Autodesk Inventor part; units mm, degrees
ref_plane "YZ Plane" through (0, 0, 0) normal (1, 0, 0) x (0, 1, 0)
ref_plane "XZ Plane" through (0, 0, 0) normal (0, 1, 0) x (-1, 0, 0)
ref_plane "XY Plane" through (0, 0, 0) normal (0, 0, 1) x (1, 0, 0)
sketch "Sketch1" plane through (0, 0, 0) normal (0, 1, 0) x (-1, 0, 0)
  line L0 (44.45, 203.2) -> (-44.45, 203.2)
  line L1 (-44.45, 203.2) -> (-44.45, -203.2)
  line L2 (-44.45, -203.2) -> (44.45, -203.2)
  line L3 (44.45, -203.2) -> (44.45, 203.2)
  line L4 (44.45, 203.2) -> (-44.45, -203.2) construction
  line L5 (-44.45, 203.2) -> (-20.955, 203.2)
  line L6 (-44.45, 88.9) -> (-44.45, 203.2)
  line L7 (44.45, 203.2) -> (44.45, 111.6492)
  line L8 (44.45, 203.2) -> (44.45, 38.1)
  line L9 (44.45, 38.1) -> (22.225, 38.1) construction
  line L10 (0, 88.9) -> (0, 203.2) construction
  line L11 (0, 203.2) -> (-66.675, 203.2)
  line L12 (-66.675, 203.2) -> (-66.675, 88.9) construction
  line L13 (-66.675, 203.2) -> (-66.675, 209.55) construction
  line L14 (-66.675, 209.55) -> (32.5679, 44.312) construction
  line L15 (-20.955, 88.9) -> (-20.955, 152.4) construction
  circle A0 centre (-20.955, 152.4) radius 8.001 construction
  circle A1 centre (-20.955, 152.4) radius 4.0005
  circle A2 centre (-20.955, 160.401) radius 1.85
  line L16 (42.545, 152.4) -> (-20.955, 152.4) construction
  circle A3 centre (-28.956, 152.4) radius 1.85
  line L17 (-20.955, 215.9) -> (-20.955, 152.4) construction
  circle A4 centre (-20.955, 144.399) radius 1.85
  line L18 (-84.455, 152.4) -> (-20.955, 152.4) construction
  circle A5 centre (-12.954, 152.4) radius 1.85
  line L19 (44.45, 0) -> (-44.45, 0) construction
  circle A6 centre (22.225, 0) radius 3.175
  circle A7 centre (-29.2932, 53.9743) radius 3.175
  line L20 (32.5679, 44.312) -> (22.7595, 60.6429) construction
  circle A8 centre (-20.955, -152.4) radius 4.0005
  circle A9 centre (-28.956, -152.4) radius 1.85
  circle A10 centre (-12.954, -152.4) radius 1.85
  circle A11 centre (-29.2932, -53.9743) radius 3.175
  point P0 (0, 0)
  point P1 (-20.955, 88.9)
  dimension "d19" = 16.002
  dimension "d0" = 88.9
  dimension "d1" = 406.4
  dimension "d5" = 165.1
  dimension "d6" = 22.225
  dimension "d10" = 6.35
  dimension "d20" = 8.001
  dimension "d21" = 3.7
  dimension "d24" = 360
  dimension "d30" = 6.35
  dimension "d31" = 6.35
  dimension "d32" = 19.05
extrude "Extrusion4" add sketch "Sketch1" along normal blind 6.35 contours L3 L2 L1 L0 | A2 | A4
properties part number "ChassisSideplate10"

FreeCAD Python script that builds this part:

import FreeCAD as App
import Part
import Sketcher
Q = App.Units.Quantity

doc = App.newDocument("Part")
body = doc.addObject("PartDesign::Body", "Body")

sketch1 = body.newObject("Sketcher::SketchObject", "Sketch")
sketch1.AttachmentSupport = (doc.getObject("XZ_Plane"), [""])
sketch1.MapMode = "FlatFace"
sketch1.addGeometry(Part.LineSegment(App.Vector(-44.45, 203.2, 0), App.Vector(44.45, 203.2, 0)), False)
sketch1.addGeometry(Part.LineSegment(App.Vector(44.45, 203.2, 0), App.Vector(44.45, -203.2, 0)), False)
sketch1.addGeometry(Part.LineSegment(App.Vector(44.45, -203.2, 0), App.Vector(-44.45, -203.2, 0)), False)
sketch1.addGeometry(Part.LineSegment(App.Vector(-44.45, -203.2, 0), App.Vector(-44.45, 203.2, 0)), False)
sketch1.addGeometry(Part.Circle(App.Vector(28.956, -152.4, 0), App.Vector(0, 0, 1), 1.85), False)
sketch1.addGeometry(Part.Circle(App.Vector(20.955, -152.4, 0), App.Vector(0, 0, 1), 4.0005), False)
sketch1.addGeometry(Part.Circle(App.Vector(12.954, -152.4, 0), App.Vector(0, 0, 1), 1.85), False)
sketch1.addGeometry(Part.Circle(App.Vector(29.2932, -53.9743, 0), App.Vector(0, 0, 1), 3.175), False)
sketch1.addGeometry(Part.Circle(App.Vector(-22.225, 0, 0), App.Vector(0, 0, 1), 3.175), False)
sketch1.addGeometry(Part.Circle(App.Vector(29.2932, 53.9743, 0), App.Vector(0, 0, 1), 3.175), False)
sketch1.addGeometry(Part.Circle(App.Vector(28.956, 152.4, 0), App.Vector(0, 0, 1), 1.85), False)
sketch1.addGeometry(Part.Circle(App.Vector(20.955, 152.4, 0), App.Vector(0, 0, 1), 4.0005), False)
sketch1.addGeometry(Part.Circle(App.Vector(12.954, 152.4, 0), App.Vector(0, 0, 1), 1.85), False)
sketch1.addConstraint(Sketcher.Constraint("Coincident", 0, 2, 1, 1))
sketch1.addConstraint(Sketcher.Constraint("Coincident", 1, 2, 2, 1))
sketch1.addConstraint(Sketcher.Constraint("Coincident", 2, 2, 3, 1))
sketch1.addConstraint(Sketcher.Constraint("Coincident", 3, 2, 0, 1))
sketch1.addConstraint(Sketcher.Constraint("Horizontal", 0))
sketch1.addConstraint(Sketcher.Constraint("Vertical", 1))
sketch1.addConstraint(Sketcher.Constraint("Horizontal", 2))
sketch1.addConstraint(Sketcher.Constraint("Vertical", 3))
sketch1.addConstraint(Sketcher.Constraint("Equal", 4, 6))
sketch1.addConstraint(Sketcher.Constraint("Equal", 7, 8))
sketch1.addConstraint(Sketcher.Constraint("Equal", 8, 9))
sketch1.addConstraint(Sketcher.Constraint("Equal", 6, 10))
sketch1.addConstraint(Sketcher.Constraint("Equal", 5, 11))
sketch1.addConstraint(Sketcher.Constraint("Equal", 10, 12))
sketch1.addConstraint(Sketcher.Constraint("Symmetric", 0, 2, 2, 2, -1, 1))
sketch1.addConstraint(Sketcher.Constraint("Symmetric", 7, 3, 9, 3, -1))
sketch1.addConstraint(Sketcher.Constraint("Symmetric", 4, 3, 10, 3, -1))
sketch1.addConstraint(Sketcher.Constraint("Symmetric", 5, 3, 11, 3, -1))
sketch1.addConstraint(Sketcher.Constraint("Symmetric", 6, 3, 12, 3, -1))
sketch1.addConstraint(Sketcher.Constraint("PointOnObject", 8, 3, -1))
sketch1.addConstraint(Sketcher.Constraint("Horizontal", 4, 3, 5, 3))
sketch1.addConstraint(Sketcher.Constraint("Horizontal", 5, 3, 6, 3))
sketch1.addConstraint(Sketcher.Constraint("Diameter", 7, Q("0.25 in")))
sketch1.addConstraint(Sketcher.Constraint("DistanceY", 1, 2, 1, 1, Q("16 in")))
sketch1.addConstraint(Sketcher.Constraint("Diameter", 5, Q("0.315 in")))
sketch1.addConstraint(Sketcher.Constraint("DistanceX", 0, 1, 0, 2, Q("3.5 in")))
sketch1.addConstraint(Sketcher.Constraint("Diameter", 4, 3.7))
sketch1.addConstraint(Sketcher.Constraint("DistanceX", 6, 3, 4, 3, Q("0.63 in")))
sketch1.addConstraint(Sketcher.Constraint("DistanceY", 4, 3, -1, 1, Q("6 in")))
sketch1.addConstraint(Sketcher.Constraint("DistanceX", 8, 3, -1, 1, Q("0.875 in")))
sketch1.addConstraint(Sketcher.Constraint("DistanceX", 5, 3, 4, 3, Q("0.315 in")))
sketch1.addConstraint(Sketcher.Constraint("DistanceX", 8, 3, 5, 3, Q("1.7 in")))
sketch1.addConstraint(Sketcher.Constraint("DistanceX", -1, 1, 7, 3, 29.2932))
sketch1.addConstraint(Sketcher.Constraint("DistanceY", 7, 3, -1, 1, 53.9743))
pad1 = body.newObject("PartDesign::Pad", "Pad")
pad1.Profile = sketch1
pad1.Length = Q("0.25 in")
pad1.Reversed = True

doc.recompute()
